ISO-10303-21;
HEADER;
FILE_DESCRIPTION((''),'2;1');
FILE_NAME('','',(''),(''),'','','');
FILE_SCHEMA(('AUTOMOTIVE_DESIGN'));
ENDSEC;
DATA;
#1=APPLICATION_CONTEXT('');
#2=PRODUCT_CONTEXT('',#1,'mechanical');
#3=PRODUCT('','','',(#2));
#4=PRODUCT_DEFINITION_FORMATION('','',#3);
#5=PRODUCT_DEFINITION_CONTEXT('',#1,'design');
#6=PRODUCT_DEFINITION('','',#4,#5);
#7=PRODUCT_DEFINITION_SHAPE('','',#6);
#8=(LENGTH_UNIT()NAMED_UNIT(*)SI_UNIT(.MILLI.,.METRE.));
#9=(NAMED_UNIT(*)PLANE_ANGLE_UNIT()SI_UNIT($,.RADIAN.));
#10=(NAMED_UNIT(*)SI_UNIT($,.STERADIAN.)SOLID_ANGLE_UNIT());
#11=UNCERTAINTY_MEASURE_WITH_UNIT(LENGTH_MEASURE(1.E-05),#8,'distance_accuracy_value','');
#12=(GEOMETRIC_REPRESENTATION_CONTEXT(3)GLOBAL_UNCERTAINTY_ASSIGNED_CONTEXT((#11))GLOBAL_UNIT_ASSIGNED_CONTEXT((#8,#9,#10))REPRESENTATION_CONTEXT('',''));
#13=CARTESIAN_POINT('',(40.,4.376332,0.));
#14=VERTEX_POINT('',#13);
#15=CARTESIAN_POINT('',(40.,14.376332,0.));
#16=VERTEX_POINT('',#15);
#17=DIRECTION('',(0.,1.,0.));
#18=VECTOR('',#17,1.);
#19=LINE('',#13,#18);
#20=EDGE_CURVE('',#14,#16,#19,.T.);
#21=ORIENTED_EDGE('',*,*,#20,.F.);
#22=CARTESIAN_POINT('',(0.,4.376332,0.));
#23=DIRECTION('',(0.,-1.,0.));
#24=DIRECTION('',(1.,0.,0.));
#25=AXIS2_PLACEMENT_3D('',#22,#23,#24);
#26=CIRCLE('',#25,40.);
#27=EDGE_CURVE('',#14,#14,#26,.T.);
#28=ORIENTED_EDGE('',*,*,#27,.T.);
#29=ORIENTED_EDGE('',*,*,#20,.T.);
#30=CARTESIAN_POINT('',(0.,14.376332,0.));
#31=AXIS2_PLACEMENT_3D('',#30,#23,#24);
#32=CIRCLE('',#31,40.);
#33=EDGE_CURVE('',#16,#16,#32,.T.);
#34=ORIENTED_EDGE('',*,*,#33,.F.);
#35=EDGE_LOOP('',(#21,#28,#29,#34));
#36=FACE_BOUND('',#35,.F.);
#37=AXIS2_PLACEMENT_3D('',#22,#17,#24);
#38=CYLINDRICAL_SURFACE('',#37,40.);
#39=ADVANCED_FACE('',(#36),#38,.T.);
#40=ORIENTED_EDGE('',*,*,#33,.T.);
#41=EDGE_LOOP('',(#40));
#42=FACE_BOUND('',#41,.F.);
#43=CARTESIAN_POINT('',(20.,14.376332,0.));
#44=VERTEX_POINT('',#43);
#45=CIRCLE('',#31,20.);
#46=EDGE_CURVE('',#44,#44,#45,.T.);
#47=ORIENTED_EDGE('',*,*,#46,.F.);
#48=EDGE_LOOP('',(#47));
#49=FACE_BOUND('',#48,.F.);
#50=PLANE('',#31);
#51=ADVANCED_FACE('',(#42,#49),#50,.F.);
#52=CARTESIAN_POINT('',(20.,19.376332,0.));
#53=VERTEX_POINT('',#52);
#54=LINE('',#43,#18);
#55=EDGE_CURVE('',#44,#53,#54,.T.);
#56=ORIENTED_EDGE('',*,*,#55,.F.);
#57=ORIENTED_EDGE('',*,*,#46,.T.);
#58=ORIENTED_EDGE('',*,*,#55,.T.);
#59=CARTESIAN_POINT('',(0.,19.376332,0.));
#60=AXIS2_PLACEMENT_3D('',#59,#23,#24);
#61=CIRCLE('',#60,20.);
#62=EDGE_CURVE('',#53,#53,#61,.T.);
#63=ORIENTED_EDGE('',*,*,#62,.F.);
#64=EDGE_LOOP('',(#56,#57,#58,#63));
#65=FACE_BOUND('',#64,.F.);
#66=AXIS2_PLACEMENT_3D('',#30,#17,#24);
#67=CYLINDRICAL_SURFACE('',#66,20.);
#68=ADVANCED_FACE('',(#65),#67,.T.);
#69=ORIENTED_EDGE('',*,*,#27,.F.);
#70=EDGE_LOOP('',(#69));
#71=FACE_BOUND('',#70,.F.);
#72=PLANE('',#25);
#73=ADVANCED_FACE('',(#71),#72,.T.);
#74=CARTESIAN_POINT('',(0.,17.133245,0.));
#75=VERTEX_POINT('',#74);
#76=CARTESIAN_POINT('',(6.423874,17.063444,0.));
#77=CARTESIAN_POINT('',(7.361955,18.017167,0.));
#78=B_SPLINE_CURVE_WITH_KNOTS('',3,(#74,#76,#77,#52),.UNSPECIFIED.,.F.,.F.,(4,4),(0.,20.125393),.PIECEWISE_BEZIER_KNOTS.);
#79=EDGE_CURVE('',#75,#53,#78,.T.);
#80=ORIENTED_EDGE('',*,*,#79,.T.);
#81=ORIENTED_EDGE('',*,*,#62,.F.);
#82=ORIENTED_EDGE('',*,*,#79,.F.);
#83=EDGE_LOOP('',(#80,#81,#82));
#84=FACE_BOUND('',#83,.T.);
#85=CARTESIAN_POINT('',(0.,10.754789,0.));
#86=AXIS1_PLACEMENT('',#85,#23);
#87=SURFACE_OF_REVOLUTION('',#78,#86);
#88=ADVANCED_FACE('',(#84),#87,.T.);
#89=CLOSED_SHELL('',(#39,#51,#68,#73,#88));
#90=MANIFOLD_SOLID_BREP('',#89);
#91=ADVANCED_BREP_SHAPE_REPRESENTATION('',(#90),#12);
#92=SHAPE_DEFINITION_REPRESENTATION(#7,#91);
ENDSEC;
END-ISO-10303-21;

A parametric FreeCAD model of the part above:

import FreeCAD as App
import Part
import Sketcher

doc = App.newDocument("Part")
body = doc.addObject("PartDesign::Body", "Body")

# Sketch on XY plane
sketch1 = body.newObject("Sketcher::SketchObject", "Sketch")
sketch1.AttachmentSupport = (doc.getObject("XY_Plane"), [""])
sketch1.MapMode = "FlatFace"
sketch1.addGeometry(Part.BSplineCurve([App.Vector(0, 17.133245, 0), App.Vector(6.423874, 17.063444, 0), App.Vector(7.361955, 18.017167, 0), App.Vector(20, 19.376332, 0)], [4, 4], [0, 20.125393], False, 3, [1, 1, 1, 1], False), False)
sketch1.addGeometry(Part.LineSegment(App.Vector(0, 17.133245, 0), App.Vector(0, 4.376332, 0)), False)
sketch1.addGeometry(Part.LineSegment(App.Vector(0, 4.376332, 0), App.Vector(40, 4.376332, 0)), False)
sketch1.addGeometry(Part.LineSegment(App.Vector(40, 4.376332, 0), App.Vector(40, 14.376332, 0)), False)
sketch1.addGeometry(Part.LineSegment(App.Vector(40, 14.376332, 0), App.Vector(20, 14.376332, 0)), False)
sketch1.addGeometry(Part.LineSegment(App.Vector(20, 14.376332, 0), App.Vector(20, 19.376332, 0)), False)
sketch1.addConstraint(Sketcher.Constraint("Block", 0))
sketch1.addConstraint(Sketcher.Constraint("Coincident", 0, 1, 1, 1))
sketch1.addConstraint(Sketcher.Constraint("Coincident", 1, 2, 2, 1))
sketch1.addConstraint(Sketcher.Constraint("Coincident", 2, 2, 3, 1))
sketch1.addConstraint(Sketcher.Constraint("Coincident", 3, 2, 4, 1))
sketch1.addConstraint(Sketcher.Constraint("Coincident", 4, 2, 5, 1))
sketch1.addConstraint(Sketcher.Constraint("Coincident", 5, 2, 0, 2))
sketch1.addConstraint(Sketcher.Constraint("Vertical", 1))
sketch1.addConstraint(Sketcher.Constraint("Horizontal", 2))
sketch1.addConstraint(Sketcher.Constraint("Vertical", 3))
sketch1.addConstraint(Sketcher.Constraint("Horizontal", 4))
sketch1.addConstraint(Sketcher.Constraint("Vertical", 5))
sketch1.addConstraint(Sketcher.Constraint("DistanceX", 2, 1, 2, 2, 40.0))
sketch1.addConstraint(Sketcher.Constraint("DistanceY", 3, 1, 3, 2, 10.0))
sketch1.addConstraint(Sketcher.Constraint("DistanceY", 5, 1, 5, 2, 5.0))
revolution = body.newObject("PartDesign::Revolution", "Revolution")
revolution.Profile = sketch1
revolution.ReferenceAxis = (sketch1, ["V_Axis"])
revolution.Angle = 360

doc.recompute()
